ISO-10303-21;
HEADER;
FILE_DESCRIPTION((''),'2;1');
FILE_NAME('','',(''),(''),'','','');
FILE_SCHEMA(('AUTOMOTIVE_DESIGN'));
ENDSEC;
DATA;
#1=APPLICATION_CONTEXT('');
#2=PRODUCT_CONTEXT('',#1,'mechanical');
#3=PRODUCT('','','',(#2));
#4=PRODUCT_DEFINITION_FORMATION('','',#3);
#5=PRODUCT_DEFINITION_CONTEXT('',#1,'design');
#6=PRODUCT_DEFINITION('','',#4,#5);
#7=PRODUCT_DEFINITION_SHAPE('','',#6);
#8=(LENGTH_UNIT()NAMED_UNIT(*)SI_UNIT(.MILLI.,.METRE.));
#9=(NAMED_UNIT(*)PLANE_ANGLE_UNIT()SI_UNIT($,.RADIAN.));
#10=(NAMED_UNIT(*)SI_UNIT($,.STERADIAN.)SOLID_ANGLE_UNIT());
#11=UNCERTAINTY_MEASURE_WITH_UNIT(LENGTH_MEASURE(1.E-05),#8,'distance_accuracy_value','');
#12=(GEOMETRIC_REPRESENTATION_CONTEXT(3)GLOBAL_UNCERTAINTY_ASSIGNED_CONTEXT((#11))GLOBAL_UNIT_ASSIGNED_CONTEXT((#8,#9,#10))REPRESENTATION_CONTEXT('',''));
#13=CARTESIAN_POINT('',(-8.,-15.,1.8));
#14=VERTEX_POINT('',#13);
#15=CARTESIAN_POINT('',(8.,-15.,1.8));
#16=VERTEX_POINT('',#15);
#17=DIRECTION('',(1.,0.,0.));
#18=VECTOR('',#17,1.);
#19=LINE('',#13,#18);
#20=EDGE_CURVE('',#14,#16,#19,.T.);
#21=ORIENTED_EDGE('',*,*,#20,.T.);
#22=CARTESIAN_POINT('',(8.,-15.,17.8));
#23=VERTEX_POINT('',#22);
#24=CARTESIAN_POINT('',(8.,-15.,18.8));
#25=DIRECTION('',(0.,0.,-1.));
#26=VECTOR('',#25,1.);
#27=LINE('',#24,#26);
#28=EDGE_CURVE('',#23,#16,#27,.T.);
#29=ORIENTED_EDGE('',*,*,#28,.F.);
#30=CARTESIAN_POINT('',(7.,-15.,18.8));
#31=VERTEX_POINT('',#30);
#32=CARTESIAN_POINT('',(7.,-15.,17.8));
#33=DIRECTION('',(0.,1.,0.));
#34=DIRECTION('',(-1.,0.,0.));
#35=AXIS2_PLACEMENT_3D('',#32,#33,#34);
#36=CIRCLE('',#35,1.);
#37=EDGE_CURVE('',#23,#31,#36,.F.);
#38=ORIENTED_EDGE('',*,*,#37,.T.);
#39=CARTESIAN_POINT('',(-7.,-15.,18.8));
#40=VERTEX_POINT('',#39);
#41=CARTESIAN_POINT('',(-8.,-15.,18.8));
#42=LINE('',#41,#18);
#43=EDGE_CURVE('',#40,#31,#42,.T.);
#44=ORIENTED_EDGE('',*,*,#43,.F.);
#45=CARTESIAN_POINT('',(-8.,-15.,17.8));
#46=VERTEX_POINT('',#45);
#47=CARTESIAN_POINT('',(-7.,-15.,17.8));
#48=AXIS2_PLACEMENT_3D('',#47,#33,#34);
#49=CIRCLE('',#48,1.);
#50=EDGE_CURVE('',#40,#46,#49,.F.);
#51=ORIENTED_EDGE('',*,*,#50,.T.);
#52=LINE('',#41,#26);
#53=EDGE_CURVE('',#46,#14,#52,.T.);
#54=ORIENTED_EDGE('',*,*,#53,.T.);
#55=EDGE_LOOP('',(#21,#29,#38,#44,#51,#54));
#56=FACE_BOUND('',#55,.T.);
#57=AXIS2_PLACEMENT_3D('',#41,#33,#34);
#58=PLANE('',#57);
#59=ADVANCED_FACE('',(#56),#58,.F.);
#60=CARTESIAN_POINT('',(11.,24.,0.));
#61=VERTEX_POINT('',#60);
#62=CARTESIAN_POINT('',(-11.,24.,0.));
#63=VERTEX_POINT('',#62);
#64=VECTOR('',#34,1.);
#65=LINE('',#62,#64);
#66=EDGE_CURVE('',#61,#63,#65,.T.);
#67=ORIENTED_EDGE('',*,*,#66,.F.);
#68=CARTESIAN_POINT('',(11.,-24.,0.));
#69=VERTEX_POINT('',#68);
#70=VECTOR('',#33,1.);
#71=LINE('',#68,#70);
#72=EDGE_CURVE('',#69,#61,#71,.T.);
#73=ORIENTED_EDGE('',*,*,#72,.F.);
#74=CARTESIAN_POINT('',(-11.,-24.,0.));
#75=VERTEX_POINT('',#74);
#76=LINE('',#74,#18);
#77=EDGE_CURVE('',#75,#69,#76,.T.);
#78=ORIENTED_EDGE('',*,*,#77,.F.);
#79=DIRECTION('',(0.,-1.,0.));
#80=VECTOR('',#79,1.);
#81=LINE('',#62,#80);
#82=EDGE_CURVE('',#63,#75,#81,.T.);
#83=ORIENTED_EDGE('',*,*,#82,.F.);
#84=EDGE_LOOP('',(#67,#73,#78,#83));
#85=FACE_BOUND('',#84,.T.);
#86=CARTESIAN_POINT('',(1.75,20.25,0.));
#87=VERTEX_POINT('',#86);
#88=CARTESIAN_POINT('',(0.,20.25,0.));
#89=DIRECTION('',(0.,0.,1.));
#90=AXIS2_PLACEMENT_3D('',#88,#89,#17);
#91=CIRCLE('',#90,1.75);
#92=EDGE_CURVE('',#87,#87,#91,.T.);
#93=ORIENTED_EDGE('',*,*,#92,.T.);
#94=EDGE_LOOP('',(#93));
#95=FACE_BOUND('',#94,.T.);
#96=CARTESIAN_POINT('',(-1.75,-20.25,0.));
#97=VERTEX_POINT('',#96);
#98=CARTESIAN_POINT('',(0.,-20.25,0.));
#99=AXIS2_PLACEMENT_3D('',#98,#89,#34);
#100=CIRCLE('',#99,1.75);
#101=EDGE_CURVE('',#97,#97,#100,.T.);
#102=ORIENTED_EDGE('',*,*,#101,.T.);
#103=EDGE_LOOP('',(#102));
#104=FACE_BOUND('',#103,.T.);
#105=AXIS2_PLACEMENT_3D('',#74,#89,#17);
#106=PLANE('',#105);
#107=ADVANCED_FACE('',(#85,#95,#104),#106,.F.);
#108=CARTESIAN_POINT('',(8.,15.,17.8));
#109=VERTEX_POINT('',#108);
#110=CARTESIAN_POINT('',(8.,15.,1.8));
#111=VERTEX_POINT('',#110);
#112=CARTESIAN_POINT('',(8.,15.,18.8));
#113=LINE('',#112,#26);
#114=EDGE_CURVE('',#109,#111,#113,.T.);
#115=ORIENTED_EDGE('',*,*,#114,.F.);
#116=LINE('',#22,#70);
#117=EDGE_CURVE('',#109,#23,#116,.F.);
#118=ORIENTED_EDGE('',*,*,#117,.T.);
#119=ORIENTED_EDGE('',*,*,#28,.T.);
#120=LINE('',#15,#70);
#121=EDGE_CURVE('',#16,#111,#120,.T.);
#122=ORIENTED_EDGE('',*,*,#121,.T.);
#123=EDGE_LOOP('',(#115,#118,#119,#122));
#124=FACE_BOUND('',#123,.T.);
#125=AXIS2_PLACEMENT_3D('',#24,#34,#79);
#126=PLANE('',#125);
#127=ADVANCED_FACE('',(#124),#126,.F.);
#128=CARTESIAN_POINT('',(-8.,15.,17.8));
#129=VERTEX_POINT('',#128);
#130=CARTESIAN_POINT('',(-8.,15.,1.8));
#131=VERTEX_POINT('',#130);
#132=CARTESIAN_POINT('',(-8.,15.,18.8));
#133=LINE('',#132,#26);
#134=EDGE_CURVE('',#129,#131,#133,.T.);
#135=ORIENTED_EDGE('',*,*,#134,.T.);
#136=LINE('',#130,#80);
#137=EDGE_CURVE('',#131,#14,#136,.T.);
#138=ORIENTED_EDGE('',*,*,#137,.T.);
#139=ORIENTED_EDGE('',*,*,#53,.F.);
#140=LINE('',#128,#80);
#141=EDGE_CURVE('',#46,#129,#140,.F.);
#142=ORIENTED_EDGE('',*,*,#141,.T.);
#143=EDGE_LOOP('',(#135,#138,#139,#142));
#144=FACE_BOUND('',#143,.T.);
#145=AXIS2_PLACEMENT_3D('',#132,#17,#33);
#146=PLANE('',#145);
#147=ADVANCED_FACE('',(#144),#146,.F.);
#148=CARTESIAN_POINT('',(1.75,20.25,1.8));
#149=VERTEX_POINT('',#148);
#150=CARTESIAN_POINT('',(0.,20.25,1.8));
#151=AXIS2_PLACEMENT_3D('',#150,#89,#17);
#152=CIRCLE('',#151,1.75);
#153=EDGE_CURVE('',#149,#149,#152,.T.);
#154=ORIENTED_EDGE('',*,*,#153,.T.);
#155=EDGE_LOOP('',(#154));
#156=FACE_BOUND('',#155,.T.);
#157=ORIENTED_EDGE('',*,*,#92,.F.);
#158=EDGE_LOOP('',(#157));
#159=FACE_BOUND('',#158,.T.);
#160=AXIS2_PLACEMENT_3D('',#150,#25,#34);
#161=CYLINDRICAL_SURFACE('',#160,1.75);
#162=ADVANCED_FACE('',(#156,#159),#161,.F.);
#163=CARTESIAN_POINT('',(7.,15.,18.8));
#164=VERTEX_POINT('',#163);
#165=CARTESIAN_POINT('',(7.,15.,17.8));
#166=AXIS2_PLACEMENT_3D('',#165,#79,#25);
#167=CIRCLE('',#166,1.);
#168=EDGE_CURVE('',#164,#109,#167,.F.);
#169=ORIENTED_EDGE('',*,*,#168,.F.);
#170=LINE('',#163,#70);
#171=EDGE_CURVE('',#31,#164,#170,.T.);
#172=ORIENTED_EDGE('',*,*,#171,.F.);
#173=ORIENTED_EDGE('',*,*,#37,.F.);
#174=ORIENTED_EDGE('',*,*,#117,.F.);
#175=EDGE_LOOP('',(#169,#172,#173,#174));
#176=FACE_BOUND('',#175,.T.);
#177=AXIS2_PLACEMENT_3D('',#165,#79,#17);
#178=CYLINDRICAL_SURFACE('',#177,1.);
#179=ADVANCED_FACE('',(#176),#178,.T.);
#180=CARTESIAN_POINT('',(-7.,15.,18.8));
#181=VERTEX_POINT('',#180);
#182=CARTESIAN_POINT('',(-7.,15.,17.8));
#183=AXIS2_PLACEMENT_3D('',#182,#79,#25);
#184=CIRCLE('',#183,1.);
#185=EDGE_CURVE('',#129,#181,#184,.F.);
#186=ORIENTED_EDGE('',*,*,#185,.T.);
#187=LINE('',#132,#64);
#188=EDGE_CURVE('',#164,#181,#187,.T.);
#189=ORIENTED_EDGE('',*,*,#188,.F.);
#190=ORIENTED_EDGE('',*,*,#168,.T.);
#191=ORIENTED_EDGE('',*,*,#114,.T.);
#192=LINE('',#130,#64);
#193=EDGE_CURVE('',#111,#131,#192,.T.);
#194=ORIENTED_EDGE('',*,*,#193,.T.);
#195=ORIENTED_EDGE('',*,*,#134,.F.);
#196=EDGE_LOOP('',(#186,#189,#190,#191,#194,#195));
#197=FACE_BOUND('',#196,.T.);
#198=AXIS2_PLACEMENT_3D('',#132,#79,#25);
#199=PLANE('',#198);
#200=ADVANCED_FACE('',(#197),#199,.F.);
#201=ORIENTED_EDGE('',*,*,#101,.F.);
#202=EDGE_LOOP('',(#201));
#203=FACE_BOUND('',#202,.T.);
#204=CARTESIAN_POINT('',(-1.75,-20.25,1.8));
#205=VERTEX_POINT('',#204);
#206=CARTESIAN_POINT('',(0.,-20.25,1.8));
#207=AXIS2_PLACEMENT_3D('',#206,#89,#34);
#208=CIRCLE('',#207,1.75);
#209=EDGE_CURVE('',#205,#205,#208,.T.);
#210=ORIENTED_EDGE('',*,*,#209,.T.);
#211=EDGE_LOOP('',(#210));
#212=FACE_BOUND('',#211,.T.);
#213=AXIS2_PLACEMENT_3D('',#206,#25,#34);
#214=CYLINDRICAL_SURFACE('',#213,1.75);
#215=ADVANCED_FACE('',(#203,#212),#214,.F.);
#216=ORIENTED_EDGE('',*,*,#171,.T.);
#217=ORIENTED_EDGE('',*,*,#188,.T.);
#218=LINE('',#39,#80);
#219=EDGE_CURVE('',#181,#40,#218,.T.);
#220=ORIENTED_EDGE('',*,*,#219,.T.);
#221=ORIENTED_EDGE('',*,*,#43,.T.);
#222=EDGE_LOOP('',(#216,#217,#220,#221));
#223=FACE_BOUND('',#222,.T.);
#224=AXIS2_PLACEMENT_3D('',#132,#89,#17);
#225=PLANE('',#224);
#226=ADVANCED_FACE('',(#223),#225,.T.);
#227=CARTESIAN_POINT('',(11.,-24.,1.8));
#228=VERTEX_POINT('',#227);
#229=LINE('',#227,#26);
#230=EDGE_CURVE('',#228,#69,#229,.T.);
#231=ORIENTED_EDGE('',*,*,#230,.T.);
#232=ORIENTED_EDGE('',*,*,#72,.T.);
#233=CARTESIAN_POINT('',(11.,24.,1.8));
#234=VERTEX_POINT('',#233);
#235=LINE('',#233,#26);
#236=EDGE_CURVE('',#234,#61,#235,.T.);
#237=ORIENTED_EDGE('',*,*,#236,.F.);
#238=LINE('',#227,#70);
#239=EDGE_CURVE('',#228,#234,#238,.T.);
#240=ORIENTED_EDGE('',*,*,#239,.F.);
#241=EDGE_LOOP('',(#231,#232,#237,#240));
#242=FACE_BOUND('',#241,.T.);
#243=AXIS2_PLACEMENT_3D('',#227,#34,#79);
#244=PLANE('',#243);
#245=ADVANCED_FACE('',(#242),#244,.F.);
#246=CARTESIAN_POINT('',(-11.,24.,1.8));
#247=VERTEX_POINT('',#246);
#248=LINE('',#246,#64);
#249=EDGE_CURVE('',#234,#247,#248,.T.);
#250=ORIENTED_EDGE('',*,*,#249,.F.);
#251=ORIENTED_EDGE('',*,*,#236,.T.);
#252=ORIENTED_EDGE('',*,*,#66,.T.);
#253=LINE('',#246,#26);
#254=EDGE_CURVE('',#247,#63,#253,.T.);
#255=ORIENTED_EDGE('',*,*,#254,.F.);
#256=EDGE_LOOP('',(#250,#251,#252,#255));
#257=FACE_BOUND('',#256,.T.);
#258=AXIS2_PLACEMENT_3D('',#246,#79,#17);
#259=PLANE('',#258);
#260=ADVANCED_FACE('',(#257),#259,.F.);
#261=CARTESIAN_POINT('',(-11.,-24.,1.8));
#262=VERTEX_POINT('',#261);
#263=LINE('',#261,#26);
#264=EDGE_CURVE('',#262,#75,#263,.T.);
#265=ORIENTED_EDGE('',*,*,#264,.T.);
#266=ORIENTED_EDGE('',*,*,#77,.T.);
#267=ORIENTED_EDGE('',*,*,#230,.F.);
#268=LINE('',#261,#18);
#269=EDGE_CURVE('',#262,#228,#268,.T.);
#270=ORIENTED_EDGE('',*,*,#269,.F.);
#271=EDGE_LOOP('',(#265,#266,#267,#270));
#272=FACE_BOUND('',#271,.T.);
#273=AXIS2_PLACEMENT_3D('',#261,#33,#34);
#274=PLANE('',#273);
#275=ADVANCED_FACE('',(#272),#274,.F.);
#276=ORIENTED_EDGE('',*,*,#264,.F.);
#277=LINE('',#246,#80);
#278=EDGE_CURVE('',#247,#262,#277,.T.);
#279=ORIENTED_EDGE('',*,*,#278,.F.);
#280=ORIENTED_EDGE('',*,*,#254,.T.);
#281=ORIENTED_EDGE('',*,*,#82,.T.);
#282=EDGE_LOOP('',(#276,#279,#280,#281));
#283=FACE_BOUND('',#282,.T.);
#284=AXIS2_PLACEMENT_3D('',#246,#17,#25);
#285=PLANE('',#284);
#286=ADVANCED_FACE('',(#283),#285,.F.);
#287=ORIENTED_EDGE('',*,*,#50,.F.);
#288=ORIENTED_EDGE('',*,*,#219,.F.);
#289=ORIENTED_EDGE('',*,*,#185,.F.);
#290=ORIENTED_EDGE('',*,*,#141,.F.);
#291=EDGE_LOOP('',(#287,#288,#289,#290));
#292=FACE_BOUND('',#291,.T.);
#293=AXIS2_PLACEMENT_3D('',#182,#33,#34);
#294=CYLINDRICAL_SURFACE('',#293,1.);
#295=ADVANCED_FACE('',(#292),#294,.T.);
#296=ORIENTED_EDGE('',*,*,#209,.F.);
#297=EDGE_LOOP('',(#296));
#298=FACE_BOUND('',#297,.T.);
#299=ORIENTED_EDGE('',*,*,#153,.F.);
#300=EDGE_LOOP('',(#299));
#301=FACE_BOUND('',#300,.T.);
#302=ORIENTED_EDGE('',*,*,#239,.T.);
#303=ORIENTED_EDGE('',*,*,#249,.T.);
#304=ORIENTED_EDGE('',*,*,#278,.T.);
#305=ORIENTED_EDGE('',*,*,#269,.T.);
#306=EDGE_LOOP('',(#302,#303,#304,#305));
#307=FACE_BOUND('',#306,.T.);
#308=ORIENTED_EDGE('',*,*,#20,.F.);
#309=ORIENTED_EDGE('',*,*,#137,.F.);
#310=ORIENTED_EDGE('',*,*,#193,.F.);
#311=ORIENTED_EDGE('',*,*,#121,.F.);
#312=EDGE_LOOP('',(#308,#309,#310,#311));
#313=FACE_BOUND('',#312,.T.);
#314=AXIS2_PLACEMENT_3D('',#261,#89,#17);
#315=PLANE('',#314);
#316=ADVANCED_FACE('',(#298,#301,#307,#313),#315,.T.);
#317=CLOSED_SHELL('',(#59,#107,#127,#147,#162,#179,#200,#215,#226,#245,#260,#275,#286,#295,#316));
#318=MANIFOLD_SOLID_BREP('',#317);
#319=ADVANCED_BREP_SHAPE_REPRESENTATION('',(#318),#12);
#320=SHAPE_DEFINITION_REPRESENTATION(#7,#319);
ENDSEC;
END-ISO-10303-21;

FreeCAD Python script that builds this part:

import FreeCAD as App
import Part
import Sketcher

V = App.Vector


def edges_at(feature, points):
    """Names of the edges that pass closest to the given points."""
    edges = feature.Shape.Edges
    near = lambda p: min(range(len(edges)), key=lambda i: edges[i].distToShape(Part.Vertex(*p))[0])
    return sorted({f"Edge{near(p) + 1}" for p in points})


def add_polygon(sketch, points):
    """Adds a closed chain of lines whose ends are joined by coincident constraints."""
    first, n = sketch.GeometryCount, len(points)
    for a, b in zip(points, points[1:] + points[:1]):
        sketch.addGeometry(Part.LineSegment(App.Vector(*a, 0), App.Vector(*b, 0)), False)
    for i in range(n):
        sketch.addConstraint(Sketcher.Constraint("Coincident", first + i, 2, first + (i + 1) % n, 1))

doc = App.newDocument("Part")
params = doc.addObject("Spreadsheet::Sheet", "Params")
for row, (alias, value) in enumerate([
    ("sketch1_diameter", "3.5 mm"),
    ("sketch1_width", "22 mm"),
    ("sketch1_height", "48 mm"),
    ("pad1_length", "1.8 mm"),
    ("sketch2_width", "16 mm"),
    ("sketch2_height", "30 mm"),
    ("pad2_length", "17 mm"),
    ("fillet_radius", "1 mm"),
], start=1):
    params.set(f"A{row}", alias)
    params.set(f"B{row}", "=" + value)
    params.setAlias(f"B{row}", alias)

body = doc.addObject("PartDesign::Body", "Body")

# Sketch on XY plane
sketch1 = body.newObject("Sketcher::SketchObject", "Sketch")
sketch1.AttachmentSupport = (doc.getObject("XY_Plane"), [""])
sketch1.MapMode = "FlatFace"
add_polygon(sketch1, [(-11, 24), (-11, -24), (11, -24), (11, 24)])  # lines 0-3
sketch1.addGeometry(Part.Circle(V(0, -20.2, 0), V(0, 0, 1), 1.8), False)  # 4
sketch1.addGeometry(Part.Circle(V(0, 20.2, 0), V(0, 0, 1), 1.8), False)  # 5
sketch1.addConstraint([
    Sketcher.Constraint("Vertical", 0),
    Sketcher.Constraint("Horizontal", 1),
    Sketcher.Constraint("Vertical", 2),
    Sketcher.Constraint("Horizontal", 3),
    Sketcher.Constraint("Equal", 4, 5),
    Sketcher.Constraint("Symmetric", 4, 3, 5, 3, -1, 1),
    Sketcher.Constraint("Symmetric", 0, 2, 2, 2, -1, 1),
    Sketcher.Constraint("PointOnObject", 4, 3, -2),
    Sketcher.Constraint("Diameter", 4, 3.5),
    Sketcher.Constraint("DistanceX", 1, 1, 1, 2, 22.0),
    Sketcher.Constraint("DistanceY", 0, 2, 0, 1, 48.0),
    Sketcher.Constraint("DistanceY", 4, 3, 5, 3, 40.5),
])
sketch1.setExpression("Constraints[12]", "Params.sketch1_diameter")
sketch1.setExpression("Constraints[13]", "Params.sketch1_width")
sketch1.setExpression("Constraints[14]", "Params.sketch1_height")
pad1 = body.newObject("PartDesign::Pad", "Pad")
pad1.Profile = sketch1
pad1.setExpression("Length", "Params.pad1_length")

# Sketch on XY plane
sketch2 = body.newObject("Sketcher::SketchObject", "Sketch001")
sketch2.AttachmentSupport = (doc.getObject("XY_Plane"), [""])
sketch2.MapMode = "FlatFace"
sketch2.AttachmentOffset = App.Placement(V(0, 0, 1.8), App.Rotation())
add_polygon(sketch2, [(-8, 15), (-8, -15), (8, -15), (8, 15)])  # lines 0-3
sketch2.addConstraint([
    Sketcher.Constraint("Vertical", 0),
    Sketcher.Constraint("Horizontal", 1),
    Sketcher.Constraint("Vertical", 2),
    Sketcher.Constraint("Horizontal", 3),
    Sketcher.Constraint("Symmetric", 0, 2, 2, 2, -1, 1),
    Sketcher.Constraint("DistanceX", 1, 1, 1, 2, 16.0),
    Sketcher.Constraint("DistanceY", 0, 2, 0, 1, 30.0),
])
sketch2.setExpression("Constraints[9]", "Params.sketch2_width")
sketch2.setExpression("Constraints[10]", "Params.sketch2_height")
pad2 = body.newObject("PartDesign::Pad", "Pad001")
pad2.Profile = sketch2
pad2.setExpression("Length", "Params.pad2_length")
doc.recompute()

fillet = body.newObject("PartDesign::Fillet", "Fillet")
fillet.Base = (pad2, edges_at(pad2, [(-8, 0, 18.8), (8, 0, 18.8)]))
fillet.setExpression("Radius", "Params.fillet_radius")

doc.recompute()
